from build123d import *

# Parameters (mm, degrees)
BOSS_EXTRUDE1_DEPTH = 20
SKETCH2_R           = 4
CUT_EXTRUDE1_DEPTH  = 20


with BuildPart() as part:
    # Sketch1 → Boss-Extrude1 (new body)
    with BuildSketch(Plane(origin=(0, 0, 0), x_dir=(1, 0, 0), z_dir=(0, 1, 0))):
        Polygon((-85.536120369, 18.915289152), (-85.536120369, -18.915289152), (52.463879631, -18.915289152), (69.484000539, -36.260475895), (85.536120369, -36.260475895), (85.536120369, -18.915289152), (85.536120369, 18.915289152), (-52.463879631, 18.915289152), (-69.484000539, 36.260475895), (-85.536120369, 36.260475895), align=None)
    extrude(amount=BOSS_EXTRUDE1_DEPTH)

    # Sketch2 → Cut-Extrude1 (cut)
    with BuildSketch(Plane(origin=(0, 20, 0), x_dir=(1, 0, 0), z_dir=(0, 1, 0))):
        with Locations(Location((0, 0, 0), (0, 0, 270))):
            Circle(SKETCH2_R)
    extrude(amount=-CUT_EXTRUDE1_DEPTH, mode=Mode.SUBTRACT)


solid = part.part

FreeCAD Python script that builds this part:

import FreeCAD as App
import Part
import Sketcher

V = App.Vector

doc = App.newDocument("Part")
params = doc.addObject("Spreadsheet::Sheet", "Params")
for row, (alias, value) in enumerate([
    ("sketch1_width", "138 mm"),
    ("pad1_length", "20 mm"),
    ("sketch2_diameter", "8 mm"),
    ("pocket1_length", "20 mm"),
], start=1):
    params.set(f"A{row}", alias)
    params.set(f"B{row}", "=" + value)
    params.setAlias(f"B{row}", alias)

body = doc.addObject("PartDesign::Body", "Body")

# Sketch on XZ plane
sketch1 = body.newObject("Sketcher::SketchObject", "Sketch")
sketch1.AttachmentSupport = (doc.getObject("XZ_Plane"), [""])
sketch1.MapMode = "FlatFace"
sketch1.addGeometry([
    Part.LineSegment(V(-86, 19, 0), V(52, 19, 0)),  # 0
    Part.LineSegment(V(52, 19, 0), V(69, 36, 0)),  # 1
    Part.LineSegment(V(69, 36, 0), V(86, 36, 0)),  # 2
    Part.LineSegment(V(86, 36, 0), V(86, -19, 0)),  # 3
    Part.LineSegment(V(86, -19, 0), V(-52, -19, 0)),  # 4
    Part.LineSegment(V(-52, -19, 0), V(-69, -36, 0)),  # 5
    Part.LineSegment(V(-69, -36, 0), V(-86, -36, 0)),  # 6
    Part.LineSegment(V(-86, -36, 0), V(-86, 19, 0)),  # 7
], False)
sketch1.addConstraint([
    Sketcher.Constraint("Coincident", 0, 2, 1, 1),
    Sketcher.Constraint("Coincident", 1, 2, 2, 1),
    Sketcher.Constraint("Coincident", 2, 2, 3, 1),
    Sketcher.Constraint("Coincident", 3, 2, 4, 1),
    Sketcher.Constraint("Coincident", 4, 2, 5, 1),
    Sketcher.Constraint("Coincident", 5, 2, 6, 1),
    Sketcher.Constraint("Coincident", 6, 2, 7, 1),
    Sketcher.Constraint("Coincident", 7, 2, 0, 1),
    Sketcher.Constraint("Horizontal", 0),
    Sketcher.Constraint("Horizontal", 2),
    Sketcher.Constraint("Vertical", 3),
    Sketcher.Constraint("Horizontal", 4),
    Sketcher.Constraint("Horizontal", 6),
    Sketcher.Constraint("Vertical", 7),
    Sketcher.Constraint("Symmetric", 0, 2, 4, 2, -1, 1),
    Sketcher.Constraint("Symmetric", 1, 2, 5, 2, -1, 1),
    Sketcher.Constraint("Equal", 0, 4),
    Sketcher.Constraint("DistanceX", 0, 1, 0, 2, 138.0),
    Sketcher.Constraint("DistanceX", -1, 1, 1, 2, 69.484001),
    Sketcher.Constraint("DistanceX", 2, 1, 2, 2, 16.05212),
    Sketcher.Constraint("Distance", 1, 24.301029),
    Sketcher.Constraint("DistanceY", 3, 2, 3, 1, 55.175765),
])
sketch1.setExpression("Constraints[17]", "Params.sketch1_width")
pad1 = body.newObject("PartDesign::Pad", "Pad")
pad1.Profile = sketch1
pad1.setExpression("Length", "Params.pad1_length")
pad1.Reversed = True

# Sketch on XZ plane
sketch2 = body.newObject("Sketcher::SketchObject", "Sketch001")
sketch2.AttachmentSupport = (doc.getObject("XZ_Plane"), [""])
sketch2.MapMode = "FlatFace"
sketch2.AttachmentOffset = App.Placement(V(0, 0, -20), App.Rotation())
sketch2.addGeometry(Part.Circle(V(0, 0, 0), V(0, 0, 1), 4), False)
sketch2.addConstraint([
    Sketcher.Constraint("Coincident", 0, 3, -1, 1),
    Sketcher.Constraint("Diameter", 0, 8.0),
])
sketch2.setExpression("Constraints[1]", "Params.sketch2_diameter")
pocket1 = body.newObject("PartDesign::Pocket", "Pocket")
pocket1.Profile = sketch2
pocket1.setExpression("Length", "Params.pocket1_length")
pocket1.Reversed = True

doc.recompute()
